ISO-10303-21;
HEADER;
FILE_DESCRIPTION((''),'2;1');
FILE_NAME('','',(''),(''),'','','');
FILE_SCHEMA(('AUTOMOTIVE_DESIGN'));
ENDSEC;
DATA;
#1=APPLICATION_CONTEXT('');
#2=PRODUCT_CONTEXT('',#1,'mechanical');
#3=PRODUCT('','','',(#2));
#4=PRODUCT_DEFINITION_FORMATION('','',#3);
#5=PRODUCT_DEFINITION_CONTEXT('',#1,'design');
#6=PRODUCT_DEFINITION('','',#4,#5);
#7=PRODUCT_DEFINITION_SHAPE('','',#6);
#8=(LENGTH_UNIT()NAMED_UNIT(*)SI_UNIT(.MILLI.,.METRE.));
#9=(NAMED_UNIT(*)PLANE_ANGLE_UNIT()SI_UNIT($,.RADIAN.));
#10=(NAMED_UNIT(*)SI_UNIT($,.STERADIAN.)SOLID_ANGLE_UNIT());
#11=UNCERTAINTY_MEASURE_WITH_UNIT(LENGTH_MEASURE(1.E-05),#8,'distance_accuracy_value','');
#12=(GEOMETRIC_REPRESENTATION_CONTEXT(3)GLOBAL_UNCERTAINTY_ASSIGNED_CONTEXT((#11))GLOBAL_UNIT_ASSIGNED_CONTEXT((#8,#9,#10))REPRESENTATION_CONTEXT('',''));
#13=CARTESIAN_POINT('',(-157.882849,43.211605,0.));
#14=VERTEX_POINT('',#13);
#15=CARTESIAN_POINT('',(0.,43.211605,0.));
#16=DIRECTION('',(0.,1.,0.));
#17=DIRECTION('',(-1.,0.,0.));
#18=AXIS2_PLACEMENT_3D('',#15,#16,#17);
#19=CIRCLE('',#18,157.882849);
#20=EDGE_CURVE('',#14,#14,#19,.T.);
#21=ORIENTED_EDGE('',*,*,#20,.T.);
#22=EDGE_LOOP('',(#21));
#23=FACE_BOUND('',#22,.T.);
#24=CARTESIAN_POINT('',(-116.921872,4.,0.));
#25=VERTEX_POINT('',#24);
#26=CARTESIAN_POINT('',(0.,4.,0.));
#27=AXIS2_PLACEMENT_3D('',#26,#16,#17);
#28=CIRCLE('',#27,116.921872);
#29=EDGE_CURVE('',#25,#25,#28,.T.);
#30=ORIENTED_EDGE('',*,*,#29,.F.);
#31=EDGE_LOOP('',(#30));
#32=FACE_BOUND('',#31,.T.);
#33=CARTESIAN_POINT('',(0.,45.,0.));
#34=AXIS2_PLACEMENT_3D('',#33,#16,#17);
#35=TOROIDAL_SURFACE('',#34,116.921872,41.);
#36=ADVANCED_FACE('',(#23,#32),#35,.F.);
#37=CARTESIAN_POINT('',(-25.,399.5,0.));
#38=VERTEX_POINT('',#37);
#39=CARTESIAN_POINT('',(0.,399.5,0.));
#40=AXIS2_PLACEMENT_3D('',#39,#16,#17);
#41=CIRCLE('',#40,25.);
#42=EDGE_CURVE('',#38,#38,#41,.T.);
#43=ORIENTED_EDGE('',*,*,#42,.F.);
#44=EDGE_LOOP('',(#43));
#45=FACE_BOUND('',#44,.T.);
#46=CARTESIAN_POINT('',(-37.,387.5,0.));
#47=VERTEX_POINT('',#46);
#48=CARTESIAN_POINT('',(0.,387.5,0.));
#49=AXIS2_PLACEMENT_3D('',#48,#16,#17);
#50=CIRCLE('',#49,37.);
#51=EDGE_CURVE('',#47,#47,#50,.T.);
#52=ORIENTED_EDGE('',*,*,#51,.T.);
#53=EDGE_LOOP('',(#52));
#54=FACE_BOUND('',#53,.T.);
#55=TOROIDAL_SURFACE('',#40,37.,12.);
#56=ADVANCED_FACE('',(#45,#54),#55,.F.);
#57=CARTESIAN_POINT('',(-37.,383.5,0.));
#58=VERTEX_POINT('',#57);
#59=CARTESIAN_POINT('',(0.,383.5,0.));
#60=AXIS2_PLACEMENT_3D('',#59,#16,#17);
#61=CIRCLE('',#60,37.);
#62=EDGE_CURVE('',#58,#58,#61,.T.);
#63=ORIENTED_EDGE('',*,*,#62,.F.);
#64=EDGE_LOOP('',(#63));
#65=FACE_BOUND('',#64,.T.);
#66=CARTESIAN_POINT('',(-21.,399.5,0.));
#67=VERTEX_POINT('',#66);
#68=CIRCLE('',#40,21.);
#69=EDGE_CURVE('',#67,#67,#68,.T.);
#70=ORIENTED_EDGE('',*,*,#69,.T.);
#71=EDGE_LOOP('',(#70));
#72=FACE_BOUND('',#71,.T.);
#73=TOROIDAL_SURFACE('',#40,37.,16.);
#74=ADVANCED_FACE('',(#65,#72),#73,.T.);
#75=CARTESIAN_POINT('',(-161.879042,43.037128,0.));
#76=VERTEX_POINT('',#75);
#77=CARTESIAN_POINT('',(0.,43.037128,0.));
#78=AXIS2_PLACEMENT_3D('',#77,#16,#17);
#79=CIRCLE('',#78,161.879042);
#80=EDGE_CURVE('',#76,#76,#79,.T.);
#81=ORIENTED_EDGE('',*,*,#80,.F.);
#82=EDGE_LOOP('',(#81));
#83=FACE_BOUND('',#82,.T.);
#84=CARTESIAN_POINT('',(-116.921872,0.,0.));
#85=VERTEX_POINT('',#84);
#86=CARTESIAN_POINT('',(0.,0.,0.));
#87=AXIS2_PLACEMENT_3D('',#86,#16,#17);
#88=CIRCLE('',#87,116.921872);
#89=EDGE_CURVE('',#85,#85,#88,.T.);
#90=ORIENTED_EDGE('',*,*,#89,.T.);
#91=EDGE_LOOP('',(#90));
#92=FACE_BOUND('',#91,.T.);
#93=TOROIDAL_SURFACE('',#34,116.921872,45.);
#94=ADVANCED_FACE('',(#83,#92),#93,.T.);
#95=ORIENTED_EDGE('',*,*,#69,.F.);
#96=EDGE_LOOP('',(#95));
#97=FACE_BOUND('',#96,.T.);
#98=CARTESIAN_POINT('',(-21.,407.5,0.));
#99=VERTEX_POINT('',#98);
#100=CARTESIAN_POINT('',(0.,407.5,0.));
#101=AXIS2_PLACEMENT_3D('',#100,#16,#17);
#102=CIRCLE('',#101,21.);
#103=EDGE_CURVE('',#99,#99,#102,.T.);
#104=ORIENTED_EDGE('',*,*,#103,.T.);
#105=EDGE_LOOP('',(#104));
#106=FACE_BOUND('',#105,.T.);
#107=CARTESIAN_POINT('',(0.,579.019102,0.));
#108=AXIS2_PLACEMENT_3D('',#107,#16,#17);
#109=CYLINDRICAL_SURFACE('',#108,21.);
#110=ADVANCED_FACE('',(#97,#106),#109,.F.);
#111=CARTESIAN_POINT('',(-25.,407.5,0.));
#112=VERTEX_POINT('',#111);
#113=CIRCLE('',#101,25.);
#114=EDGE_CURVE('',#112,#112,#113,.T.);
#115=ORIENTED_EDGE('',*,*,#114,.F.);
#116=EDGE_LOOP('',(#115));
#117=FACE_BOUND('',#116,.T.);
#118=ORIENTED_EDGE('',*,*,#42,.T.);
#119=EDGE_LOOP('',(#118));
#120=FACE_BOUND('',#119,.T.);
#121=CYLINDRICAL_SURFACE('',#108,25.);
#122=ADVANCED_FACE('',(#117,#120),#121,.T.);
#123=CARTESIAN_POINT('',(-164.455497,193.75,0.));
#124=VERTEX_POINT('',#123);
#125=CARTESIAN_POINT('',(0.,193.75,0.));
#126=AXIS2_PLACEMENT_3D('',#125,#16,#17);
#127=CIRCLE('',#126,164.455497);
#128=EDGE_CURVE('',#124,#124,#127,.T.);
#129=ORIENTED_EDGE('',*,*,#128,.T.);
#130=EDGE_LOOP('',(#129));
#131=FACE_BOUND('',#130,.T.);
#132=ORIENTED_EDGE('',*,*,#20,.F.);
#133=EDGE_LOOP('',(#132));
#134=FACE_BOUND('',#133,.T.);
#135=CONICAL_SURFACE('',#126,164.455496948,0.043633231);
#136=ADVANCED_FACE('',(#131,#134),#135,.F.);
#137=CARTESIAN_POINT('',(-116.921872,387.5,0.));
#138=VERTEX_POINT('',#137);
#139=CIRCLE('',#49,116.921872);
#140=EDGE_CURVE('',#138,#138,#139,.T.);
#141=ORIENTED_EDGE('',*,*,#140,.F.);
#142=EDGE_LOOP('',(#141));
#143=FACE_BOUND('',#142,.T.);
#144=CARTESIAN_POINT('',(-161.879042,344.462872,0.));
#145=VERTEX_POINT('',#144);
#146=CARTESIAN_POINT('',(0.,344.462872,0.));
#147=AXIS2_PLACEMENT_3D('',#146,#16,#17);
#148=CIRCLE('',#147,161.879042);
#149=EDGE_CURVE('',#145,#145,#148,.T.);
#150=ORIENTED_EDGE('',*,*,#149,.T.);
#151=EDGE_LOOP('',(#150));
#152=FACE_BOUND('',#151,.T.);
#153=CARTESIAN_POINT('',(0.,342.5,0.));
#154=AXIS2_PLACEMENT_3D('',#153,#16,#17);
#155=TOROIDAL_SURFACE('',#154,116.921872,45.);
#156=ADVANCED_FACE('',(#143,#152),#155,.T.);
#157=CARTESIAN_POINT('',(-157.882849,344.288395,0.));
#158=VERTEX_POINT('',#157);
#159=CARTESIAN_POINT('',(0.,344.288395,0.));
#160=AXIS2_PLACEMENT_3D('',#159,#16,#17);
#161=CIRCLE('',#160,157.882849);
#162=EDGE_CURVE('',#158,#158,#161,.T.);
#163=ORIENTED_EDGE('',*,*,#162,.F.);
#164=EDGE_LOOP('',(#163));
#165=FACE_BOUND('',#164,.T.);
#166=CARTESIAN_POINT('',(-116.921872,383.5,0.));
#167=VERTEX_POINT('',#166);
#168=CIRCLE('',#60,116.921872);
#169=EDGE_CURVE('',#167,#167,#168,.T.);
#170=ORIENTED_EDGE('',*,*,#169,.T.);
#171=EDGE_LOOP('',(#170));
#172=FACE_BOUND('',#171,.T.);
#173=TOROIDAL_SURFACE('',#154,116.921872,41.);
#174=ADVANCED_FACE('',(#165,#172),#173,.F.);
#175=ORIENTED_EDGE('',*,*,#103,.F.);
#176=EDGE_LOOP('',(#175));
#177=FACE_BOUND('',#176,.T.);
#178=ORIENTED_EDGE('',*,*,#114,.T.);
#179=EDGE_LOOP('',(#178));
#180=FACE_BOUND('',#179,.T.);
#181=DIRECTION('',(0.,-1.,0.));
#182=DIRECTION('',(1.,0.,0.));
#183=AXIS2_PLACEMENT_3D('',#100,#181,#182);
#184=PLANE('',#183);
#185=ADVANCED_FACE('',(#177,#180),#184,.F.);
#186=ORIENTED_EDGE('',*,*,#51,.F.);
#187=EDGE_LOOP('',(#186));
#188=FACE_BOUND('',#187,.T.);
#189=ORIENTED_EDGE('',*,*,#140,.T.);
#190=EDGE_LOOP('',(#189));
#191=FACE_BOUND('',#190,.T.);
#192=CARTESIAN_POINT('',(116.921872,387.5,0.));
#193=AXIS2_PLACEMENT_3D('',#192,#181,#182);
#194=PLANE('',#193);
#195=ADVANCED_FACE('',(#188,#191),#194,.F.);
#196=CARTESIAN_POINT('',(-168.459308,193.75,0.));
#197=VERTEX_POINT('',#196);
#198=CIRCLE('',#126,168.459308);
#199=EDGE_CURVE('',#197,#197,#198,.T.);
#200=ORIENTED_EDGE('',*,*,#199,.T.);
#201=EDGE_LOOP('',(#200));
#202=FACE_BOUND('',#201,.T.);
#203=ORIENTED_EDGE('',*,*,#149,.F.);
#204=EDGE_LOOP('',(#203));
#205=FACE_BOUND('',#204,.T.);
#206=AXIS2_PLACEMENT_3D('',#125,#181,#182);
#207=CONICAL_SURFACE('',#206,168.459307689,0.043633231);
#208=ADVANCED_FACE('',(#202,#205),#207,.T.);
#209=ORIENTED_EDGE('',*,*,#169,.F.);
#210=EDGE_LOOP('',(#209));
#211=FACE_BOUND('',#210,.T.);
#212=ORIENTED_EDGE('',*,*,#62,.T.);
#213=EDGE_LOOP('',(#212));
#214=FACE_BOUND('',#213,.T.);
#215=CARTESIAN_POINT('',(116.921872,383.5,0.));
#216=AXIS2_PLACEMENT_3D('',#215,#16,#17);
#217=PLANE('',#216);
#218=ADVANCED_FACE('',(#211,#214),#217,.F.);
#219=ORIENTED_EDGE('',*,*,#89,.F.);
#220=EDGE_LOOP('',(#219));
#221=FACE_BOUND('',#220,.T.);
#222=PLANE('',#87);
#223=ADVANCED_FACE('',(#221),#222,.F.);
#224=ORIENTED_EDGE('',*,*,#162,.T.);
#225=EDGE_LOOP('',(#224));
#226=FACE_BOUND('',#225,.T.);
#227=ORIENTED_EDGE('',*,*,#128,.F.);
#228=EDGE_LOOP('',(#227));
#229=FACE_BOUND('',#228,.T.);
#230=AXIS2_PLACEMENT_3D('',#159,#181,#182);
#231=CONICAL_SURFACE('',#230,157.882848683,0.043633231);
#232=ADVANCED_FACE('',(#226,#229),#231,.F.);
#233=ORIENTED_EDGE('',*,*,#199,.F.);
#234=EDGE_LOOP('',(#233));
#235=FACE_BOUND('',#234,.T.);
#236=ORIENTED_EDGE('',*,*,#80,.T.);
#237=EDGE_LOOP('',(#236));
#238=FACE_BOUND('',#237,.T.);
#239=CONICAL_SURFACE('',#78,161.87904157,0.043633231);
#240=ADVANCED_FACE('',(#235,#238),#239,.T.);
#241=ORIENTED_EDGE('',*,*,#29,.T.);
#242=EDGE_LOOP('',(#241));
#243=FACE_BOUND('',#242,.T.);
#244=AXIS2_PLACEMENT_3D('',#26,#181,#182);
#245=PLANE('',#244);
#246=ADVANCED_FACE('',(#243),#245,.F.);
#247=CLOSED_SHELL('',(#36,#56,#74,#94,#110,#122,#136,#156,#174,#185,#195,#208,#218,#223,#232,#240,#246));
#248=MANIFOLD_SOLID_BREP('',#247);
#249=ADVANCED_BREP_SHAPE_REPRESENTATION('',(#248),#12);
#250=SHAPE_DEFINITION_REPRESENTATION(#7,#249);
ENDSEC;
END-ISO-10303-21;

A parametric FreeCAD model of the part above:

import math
import FreeCAD as App
import Part
import Sketcher
Q = App.Units.Quantity

doc = App.newDocument("Part")
body = doc.addObject("PartDesign::Body", "Body")

# Sketch on XY plane
sketch1 = doc.addObject("Sketcher::SketchObject", "Sketch")
body.addObject(sketch1)
sketch1.AttachmentSupport = (doc.XY_Plane, [""])
sketch1.MapMode = "FlatFace"
sketch1.addGeometry([
    Part.LineSegment(App.Vector(0, 0, 0), App.Vector(116.9, 0, 0)),  # 0
    Part.ArcOfCircle(Part.Circle(App.Vector(116.9, 45, 0), App.Vector(0, 0, 1), 45), math.radians(-90), math.radians(-2)),  # 1
    Part.LineSegment(App.Vector(161.9, 43, 0), App.Vector(168.5, 193.8, 0)),  # 2
    Part.LineSegment(App.Vector(168.5, 193.8, 0), App.Vector(161.9, 344.5, 0)),  # 3
    Part.ArcOfCircle(Part.Circle(App.Vector(116.9, 342.5, 0), App.Vector(0, 0, 1), 45), math.radians(2), math.radians(90)),  # 4
    Part.LineSegment(App.Vector(116.9, 387.5, 0), App.Vector(37, 387.5, 0)),  # 5
    Part.ArcOfCircle(Part.Circle(App.Vector(37, 399.5, 0), App.Vector(0, 0, 1), 12), math.radians(-180), math.radians(-90)),  # 6
    Part.LineSegment(App.Vector(25, 399.5, 0), App.Vector(25, 407.5, 0)),  # 7
    Part.LineSegment(App.Vector(25, 407.5, 0), App.Vector(0, 407.5, 0)),  # 8
    Part.LineSegment(App.Vector(0, 407.5, 0), App.Vector(0, 403.5, 0)),  # 9
    Part.LineSegment(App.Vector(0, 403.5, 0), App.Vector(21, 403.5, 0)),  # 10
    Part.LineSegment(App.Vector(21, 403.5, 0), App.Vector(21, 399.5, 0)),  # 11
    Part.ArcOfCircle(Part.Circle(App.Vector(37, 399.5, 0), App.Vector(0, 0, 1), 16), math.radians(180), math.radians(270)),  # 12
    Part.LineSegment(App.Vector(37, 383.5, 0), App.Vector(116.9, 383.5, 0)),  # 13
    Part.ArcOfCircle(Part.Circle(App.Vector(116.9, 342.5, 0), App.Vector(0, 0, 1), 41), math.radians(2), math.radians(90)),  # 14
    Part.LineSegment(App.Vector(157.9, 344.3, 0), App.Vector(164.5, 193.8, 0)),  # 15
    Part.LineSegment(App.Vector(164.5, 193.8, 0), App.Vector(157.9, 43.2, 0)),  # 16
    Part.ArcOfCircle(Part.Circle(App.Vector(116.9, 45, 0), App.Vector(0, 0, 1), 41), math.radians(-90), math.radians(-2)),  # 17
    Part.LineSegment(App.Vector(116.9, 4, 0), App.Vector(0, 4, 0)),  # 18
    Part.LineSegment(App.Vector(0, 4, 0), App.Vector(0, 0, 0)),  # 19
], False)
sketch1.addConstraint([
    Sketcher.Constraint("Tangent", 0, 2, 1, 1),
    Sketcher.Constraint("Tangent", 1, 2, 2, 1),
    Sketcher.Constraint("Coincident", 2, 2, 3, 1),
    Sketcher.Constraint("Tangent", 3, 2, 4, 1),
    Sketcher.Constraint("Tangent", 4, 2, 5, 1),
    Sketcher.Constraint("Tangent", 5, 2, 6, 2),
    Sketcher.Constraint("Tangent", 6, 1, 7, 1),
    Sketcher.Constraint("Coincident", 7, 2, 8, 1),
    Sketcher.Constraint("Coincident", 8, 2, 9, 1),
    Sketcher.Constraint("Coincident", 9, 2, 10, 1),
    Sketcher.Constraint("Coincident", 10, 2, 11, 1),
    Sketcher.Constraint("Tangent", 11, 2, 12, 1),
    Sketcher.Constraint("Tangent", 12, 2, 13, 1),
    Sketcher.Constraint("Tangent", 13, 2, 14, 2),
    Sketcher.Constraint("Tangent", 14, 1, 15, 1),
    Sketcher.Constraint("Coincident", 15, 2, 16, 1),
    Sketcher.Constraint("Tangent", 16, 2, 17, 2),
    Sketcher.Constraint("Tangent", 17, 1, 18, 1),
    Sketcher.Constraint("Coincident", 18, 2, 19, 1),
    Sketcher.Constraint("Coincident", 19, 2, 0, 1),
    Sketcher.Constraint("Horizontal", 0),
    Sketcher.Constraint("Horizontal", 5),
    Sketcher.Constraint("Vertical", 7),
    Sketcher.Constraint("Horizontal", 8),
    Sketcher.Constraint("Vertical", 9),
    Sketcher.Constraint("Horizontal", 10),
    Sketcher.Constraint("Vertical", 11),
    Sketcher.Constraint("Horizontal", 13),
    Sketcher.Constraint("Horizontal", 18),
    Sketcher.Constraint("Vertical", 19),
    Sketcher.Constraint("Coincident", 19, 2, -1, 1),
    Sketcher.Constraint("Coincident", 12, 3, 6, 3),
    Sketcher.Constraint("Coincident", 14, 3, 4, 3),
    Sketcher.Constraint("Coincident", 17, 3, 1, 3),
    Sketcher.Constraint("Equal", 1, 4),
    Sketcher.Constraint("Equal", 14, 17),
    Sketcher.Constraint("PointOnObject", 8, 2, -2),
    Sketcher.Constraint("Parallel", 3, 15),
    Sketcher.Constraint("Parallel", 2, 16),
    Sketcher.Constraint("Horizontal", 2, 2, 15, 2),
    Sketcher.Constraint("Vertical", 1, 3, 4, 3),
    Sketcher.Constraint("Equal", 9, 11),
    Sketcher.Constraint("Equal", 11, 19),
    Sketcher.Constraint("Radius", 1, 45.0),
    Sketcher.Constraint("Radius", 6, 12.0),
    Sketcher.Constraint("Radius", 12, 16.0),
    Sketcher.Constraint("DistanceX", 8, 2, 8, 1, 25.0),
    Sketcher.Constraint("Angle", 2, Q("87.5 deg")),
    Sketcher.Constraint("DistanceY", -1, 1, 4, 3, 342.5),
    Sketcher.Constraint("DistanceX", 0, 1, 0, 2, 116.921872),
])
revolution = doc.addObject("PartDesign::Revolution", "Revolution")
body.addObject(revolution)
revolution.Profile = sketch1
revolution.ReferenceAxis = (sketch1, ["V_Axis"])
revolution.Angle = 360

# Sketch on XZ plane
sketch2 = doc.addObject("Sketcher::SketchObject", "Sketch001")
body.addObject(sketch2)
sketch2.AttachmentSupport = (doc.XZ_Plane, [""])
sketch2.MapMode = "FlatFace"
sketch2.AttachmentOffset = App.Placement(App.Vector(0, 0, -407.5), App.Rotation())
sketch2.addGeometry(Part.Circle(App.Vector(0, 0, 0), App.Vector(0, 0, 1), 21), False)
sketch2.addConstraint([
    Sketcher.Constraint("Coincident", 0, 3, -1, 1),
    Sketcher.Constraint("Diameter", 0, 42.0),
])
pocket1 = doc.addObject("PartDesign::Pocket", "Pocket")
body.addObject(pocket1)
pocket1.Profile = sketch2
pocket1.Length = 30
pocket1.Reversed = True

doc.recompute()
